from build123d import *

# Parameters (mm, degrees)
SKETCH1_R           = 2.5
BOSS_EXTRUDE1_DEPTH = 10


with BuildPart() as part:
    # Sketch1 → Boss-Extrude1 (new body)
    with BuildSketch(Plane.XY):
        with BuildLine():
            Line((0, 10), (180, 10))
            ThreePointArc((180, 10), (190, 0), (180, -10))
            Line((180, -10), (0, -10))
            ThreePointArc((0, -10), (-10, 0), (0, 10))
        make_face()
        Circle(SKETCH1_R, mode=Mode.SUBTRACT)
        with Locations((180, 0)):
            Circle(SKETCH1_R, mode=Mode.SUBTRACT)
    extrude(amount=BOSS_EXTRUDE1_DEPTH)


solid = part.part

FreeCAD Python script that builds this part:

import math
import FreeCAD as App
import Part
import Sketcher

V = App.Vector
Q = App.Units.Quantity

doc = App.newDocument("Part")
body = doc.addObject("PartDesign::Body", "Body")

sketch1 = body.newObject("Sketcher::SketchObject", "Sketch")
sketch1.AttachmentSupport = (doc.getObject("XY_Plane"), [""])
sketch1.MapMode = "FlatFace"
sketch1.addGeometry(Part.LineSegment(V(180, 10, 0), V(0, 10, 0)), False)
sketch1.addGeometry(Part.ArcOfCircle(Part.Circle(V(0, 0, 0), V(0, 0, 1), 10), math.radians(90), math.radians(270)), False)
sketch1.addGeometry(Part.LineSegment(V(0, -10, 0), V(180, -10, 0)), False)
sketch1.addGeometry(Part.ArcOfCircle(Part.Circle(V(180, 0, 0), V(0, 0, 1), 10), math.radians(-90), math.radians(90)), False)
sketch1.addGeometry(Part.Circle(V(180, 0, 0), V(0, 0, 1), 2.5), False)
sketch1.addGeometry(Part.Circle(V(0, 0, 0), V(0, 0, 1), 2.5), False)
sketch1.addConstraint(Sketcher.Constraint("Tangent", 0, 2, 1, 1))
sketch1.addConstraint(Sketcher.Constraint("Tangent", 1, 2, 2, 1))
sketch1.addConstraint(Sketcher.Constraint("Tangent", 2, 2, 3, 1))
sketch1.addConstraint(Sketcher.Constraint("Tangent", 3, 2, 0, 1))
sketch1.addConstraint(Sketcher.Constraint("Horizontal", 0))
sketch1.addConstraint(Sketcher.Constraint("Horizontal", 2))
sketch1.addConstraint(Sketcher.Constraint("Coincident", 1, 3, -1, 1))
sketch1.addConstraint(Sketcher.Constraint("Coincident", 5, 3, -1, 1))
sketch1.addConstraint(Sketcher.Constraint("Coincident", 4, 3, 3, 3))
sketch1.addConstraint(Sketcher.Constraint("Equal", 4, 5))
sketch1.addConstraint(Sketcher.Constraint("Diameter", 4, Q("5 mm")))
sketch1.addConstraint(Sketcher.Constraint("Radius", 1, Q("10 mm")))
sketch1.addConstraint(Sketcher.Constraint("DistanceX", 0, 2, 0, 1, Q("180 mm")))
pad1 = body.newObject("PartDesign::Pad", "Pad")
pad1.Profile = sketch1
pad1.Length = 10

doc.recompute()
